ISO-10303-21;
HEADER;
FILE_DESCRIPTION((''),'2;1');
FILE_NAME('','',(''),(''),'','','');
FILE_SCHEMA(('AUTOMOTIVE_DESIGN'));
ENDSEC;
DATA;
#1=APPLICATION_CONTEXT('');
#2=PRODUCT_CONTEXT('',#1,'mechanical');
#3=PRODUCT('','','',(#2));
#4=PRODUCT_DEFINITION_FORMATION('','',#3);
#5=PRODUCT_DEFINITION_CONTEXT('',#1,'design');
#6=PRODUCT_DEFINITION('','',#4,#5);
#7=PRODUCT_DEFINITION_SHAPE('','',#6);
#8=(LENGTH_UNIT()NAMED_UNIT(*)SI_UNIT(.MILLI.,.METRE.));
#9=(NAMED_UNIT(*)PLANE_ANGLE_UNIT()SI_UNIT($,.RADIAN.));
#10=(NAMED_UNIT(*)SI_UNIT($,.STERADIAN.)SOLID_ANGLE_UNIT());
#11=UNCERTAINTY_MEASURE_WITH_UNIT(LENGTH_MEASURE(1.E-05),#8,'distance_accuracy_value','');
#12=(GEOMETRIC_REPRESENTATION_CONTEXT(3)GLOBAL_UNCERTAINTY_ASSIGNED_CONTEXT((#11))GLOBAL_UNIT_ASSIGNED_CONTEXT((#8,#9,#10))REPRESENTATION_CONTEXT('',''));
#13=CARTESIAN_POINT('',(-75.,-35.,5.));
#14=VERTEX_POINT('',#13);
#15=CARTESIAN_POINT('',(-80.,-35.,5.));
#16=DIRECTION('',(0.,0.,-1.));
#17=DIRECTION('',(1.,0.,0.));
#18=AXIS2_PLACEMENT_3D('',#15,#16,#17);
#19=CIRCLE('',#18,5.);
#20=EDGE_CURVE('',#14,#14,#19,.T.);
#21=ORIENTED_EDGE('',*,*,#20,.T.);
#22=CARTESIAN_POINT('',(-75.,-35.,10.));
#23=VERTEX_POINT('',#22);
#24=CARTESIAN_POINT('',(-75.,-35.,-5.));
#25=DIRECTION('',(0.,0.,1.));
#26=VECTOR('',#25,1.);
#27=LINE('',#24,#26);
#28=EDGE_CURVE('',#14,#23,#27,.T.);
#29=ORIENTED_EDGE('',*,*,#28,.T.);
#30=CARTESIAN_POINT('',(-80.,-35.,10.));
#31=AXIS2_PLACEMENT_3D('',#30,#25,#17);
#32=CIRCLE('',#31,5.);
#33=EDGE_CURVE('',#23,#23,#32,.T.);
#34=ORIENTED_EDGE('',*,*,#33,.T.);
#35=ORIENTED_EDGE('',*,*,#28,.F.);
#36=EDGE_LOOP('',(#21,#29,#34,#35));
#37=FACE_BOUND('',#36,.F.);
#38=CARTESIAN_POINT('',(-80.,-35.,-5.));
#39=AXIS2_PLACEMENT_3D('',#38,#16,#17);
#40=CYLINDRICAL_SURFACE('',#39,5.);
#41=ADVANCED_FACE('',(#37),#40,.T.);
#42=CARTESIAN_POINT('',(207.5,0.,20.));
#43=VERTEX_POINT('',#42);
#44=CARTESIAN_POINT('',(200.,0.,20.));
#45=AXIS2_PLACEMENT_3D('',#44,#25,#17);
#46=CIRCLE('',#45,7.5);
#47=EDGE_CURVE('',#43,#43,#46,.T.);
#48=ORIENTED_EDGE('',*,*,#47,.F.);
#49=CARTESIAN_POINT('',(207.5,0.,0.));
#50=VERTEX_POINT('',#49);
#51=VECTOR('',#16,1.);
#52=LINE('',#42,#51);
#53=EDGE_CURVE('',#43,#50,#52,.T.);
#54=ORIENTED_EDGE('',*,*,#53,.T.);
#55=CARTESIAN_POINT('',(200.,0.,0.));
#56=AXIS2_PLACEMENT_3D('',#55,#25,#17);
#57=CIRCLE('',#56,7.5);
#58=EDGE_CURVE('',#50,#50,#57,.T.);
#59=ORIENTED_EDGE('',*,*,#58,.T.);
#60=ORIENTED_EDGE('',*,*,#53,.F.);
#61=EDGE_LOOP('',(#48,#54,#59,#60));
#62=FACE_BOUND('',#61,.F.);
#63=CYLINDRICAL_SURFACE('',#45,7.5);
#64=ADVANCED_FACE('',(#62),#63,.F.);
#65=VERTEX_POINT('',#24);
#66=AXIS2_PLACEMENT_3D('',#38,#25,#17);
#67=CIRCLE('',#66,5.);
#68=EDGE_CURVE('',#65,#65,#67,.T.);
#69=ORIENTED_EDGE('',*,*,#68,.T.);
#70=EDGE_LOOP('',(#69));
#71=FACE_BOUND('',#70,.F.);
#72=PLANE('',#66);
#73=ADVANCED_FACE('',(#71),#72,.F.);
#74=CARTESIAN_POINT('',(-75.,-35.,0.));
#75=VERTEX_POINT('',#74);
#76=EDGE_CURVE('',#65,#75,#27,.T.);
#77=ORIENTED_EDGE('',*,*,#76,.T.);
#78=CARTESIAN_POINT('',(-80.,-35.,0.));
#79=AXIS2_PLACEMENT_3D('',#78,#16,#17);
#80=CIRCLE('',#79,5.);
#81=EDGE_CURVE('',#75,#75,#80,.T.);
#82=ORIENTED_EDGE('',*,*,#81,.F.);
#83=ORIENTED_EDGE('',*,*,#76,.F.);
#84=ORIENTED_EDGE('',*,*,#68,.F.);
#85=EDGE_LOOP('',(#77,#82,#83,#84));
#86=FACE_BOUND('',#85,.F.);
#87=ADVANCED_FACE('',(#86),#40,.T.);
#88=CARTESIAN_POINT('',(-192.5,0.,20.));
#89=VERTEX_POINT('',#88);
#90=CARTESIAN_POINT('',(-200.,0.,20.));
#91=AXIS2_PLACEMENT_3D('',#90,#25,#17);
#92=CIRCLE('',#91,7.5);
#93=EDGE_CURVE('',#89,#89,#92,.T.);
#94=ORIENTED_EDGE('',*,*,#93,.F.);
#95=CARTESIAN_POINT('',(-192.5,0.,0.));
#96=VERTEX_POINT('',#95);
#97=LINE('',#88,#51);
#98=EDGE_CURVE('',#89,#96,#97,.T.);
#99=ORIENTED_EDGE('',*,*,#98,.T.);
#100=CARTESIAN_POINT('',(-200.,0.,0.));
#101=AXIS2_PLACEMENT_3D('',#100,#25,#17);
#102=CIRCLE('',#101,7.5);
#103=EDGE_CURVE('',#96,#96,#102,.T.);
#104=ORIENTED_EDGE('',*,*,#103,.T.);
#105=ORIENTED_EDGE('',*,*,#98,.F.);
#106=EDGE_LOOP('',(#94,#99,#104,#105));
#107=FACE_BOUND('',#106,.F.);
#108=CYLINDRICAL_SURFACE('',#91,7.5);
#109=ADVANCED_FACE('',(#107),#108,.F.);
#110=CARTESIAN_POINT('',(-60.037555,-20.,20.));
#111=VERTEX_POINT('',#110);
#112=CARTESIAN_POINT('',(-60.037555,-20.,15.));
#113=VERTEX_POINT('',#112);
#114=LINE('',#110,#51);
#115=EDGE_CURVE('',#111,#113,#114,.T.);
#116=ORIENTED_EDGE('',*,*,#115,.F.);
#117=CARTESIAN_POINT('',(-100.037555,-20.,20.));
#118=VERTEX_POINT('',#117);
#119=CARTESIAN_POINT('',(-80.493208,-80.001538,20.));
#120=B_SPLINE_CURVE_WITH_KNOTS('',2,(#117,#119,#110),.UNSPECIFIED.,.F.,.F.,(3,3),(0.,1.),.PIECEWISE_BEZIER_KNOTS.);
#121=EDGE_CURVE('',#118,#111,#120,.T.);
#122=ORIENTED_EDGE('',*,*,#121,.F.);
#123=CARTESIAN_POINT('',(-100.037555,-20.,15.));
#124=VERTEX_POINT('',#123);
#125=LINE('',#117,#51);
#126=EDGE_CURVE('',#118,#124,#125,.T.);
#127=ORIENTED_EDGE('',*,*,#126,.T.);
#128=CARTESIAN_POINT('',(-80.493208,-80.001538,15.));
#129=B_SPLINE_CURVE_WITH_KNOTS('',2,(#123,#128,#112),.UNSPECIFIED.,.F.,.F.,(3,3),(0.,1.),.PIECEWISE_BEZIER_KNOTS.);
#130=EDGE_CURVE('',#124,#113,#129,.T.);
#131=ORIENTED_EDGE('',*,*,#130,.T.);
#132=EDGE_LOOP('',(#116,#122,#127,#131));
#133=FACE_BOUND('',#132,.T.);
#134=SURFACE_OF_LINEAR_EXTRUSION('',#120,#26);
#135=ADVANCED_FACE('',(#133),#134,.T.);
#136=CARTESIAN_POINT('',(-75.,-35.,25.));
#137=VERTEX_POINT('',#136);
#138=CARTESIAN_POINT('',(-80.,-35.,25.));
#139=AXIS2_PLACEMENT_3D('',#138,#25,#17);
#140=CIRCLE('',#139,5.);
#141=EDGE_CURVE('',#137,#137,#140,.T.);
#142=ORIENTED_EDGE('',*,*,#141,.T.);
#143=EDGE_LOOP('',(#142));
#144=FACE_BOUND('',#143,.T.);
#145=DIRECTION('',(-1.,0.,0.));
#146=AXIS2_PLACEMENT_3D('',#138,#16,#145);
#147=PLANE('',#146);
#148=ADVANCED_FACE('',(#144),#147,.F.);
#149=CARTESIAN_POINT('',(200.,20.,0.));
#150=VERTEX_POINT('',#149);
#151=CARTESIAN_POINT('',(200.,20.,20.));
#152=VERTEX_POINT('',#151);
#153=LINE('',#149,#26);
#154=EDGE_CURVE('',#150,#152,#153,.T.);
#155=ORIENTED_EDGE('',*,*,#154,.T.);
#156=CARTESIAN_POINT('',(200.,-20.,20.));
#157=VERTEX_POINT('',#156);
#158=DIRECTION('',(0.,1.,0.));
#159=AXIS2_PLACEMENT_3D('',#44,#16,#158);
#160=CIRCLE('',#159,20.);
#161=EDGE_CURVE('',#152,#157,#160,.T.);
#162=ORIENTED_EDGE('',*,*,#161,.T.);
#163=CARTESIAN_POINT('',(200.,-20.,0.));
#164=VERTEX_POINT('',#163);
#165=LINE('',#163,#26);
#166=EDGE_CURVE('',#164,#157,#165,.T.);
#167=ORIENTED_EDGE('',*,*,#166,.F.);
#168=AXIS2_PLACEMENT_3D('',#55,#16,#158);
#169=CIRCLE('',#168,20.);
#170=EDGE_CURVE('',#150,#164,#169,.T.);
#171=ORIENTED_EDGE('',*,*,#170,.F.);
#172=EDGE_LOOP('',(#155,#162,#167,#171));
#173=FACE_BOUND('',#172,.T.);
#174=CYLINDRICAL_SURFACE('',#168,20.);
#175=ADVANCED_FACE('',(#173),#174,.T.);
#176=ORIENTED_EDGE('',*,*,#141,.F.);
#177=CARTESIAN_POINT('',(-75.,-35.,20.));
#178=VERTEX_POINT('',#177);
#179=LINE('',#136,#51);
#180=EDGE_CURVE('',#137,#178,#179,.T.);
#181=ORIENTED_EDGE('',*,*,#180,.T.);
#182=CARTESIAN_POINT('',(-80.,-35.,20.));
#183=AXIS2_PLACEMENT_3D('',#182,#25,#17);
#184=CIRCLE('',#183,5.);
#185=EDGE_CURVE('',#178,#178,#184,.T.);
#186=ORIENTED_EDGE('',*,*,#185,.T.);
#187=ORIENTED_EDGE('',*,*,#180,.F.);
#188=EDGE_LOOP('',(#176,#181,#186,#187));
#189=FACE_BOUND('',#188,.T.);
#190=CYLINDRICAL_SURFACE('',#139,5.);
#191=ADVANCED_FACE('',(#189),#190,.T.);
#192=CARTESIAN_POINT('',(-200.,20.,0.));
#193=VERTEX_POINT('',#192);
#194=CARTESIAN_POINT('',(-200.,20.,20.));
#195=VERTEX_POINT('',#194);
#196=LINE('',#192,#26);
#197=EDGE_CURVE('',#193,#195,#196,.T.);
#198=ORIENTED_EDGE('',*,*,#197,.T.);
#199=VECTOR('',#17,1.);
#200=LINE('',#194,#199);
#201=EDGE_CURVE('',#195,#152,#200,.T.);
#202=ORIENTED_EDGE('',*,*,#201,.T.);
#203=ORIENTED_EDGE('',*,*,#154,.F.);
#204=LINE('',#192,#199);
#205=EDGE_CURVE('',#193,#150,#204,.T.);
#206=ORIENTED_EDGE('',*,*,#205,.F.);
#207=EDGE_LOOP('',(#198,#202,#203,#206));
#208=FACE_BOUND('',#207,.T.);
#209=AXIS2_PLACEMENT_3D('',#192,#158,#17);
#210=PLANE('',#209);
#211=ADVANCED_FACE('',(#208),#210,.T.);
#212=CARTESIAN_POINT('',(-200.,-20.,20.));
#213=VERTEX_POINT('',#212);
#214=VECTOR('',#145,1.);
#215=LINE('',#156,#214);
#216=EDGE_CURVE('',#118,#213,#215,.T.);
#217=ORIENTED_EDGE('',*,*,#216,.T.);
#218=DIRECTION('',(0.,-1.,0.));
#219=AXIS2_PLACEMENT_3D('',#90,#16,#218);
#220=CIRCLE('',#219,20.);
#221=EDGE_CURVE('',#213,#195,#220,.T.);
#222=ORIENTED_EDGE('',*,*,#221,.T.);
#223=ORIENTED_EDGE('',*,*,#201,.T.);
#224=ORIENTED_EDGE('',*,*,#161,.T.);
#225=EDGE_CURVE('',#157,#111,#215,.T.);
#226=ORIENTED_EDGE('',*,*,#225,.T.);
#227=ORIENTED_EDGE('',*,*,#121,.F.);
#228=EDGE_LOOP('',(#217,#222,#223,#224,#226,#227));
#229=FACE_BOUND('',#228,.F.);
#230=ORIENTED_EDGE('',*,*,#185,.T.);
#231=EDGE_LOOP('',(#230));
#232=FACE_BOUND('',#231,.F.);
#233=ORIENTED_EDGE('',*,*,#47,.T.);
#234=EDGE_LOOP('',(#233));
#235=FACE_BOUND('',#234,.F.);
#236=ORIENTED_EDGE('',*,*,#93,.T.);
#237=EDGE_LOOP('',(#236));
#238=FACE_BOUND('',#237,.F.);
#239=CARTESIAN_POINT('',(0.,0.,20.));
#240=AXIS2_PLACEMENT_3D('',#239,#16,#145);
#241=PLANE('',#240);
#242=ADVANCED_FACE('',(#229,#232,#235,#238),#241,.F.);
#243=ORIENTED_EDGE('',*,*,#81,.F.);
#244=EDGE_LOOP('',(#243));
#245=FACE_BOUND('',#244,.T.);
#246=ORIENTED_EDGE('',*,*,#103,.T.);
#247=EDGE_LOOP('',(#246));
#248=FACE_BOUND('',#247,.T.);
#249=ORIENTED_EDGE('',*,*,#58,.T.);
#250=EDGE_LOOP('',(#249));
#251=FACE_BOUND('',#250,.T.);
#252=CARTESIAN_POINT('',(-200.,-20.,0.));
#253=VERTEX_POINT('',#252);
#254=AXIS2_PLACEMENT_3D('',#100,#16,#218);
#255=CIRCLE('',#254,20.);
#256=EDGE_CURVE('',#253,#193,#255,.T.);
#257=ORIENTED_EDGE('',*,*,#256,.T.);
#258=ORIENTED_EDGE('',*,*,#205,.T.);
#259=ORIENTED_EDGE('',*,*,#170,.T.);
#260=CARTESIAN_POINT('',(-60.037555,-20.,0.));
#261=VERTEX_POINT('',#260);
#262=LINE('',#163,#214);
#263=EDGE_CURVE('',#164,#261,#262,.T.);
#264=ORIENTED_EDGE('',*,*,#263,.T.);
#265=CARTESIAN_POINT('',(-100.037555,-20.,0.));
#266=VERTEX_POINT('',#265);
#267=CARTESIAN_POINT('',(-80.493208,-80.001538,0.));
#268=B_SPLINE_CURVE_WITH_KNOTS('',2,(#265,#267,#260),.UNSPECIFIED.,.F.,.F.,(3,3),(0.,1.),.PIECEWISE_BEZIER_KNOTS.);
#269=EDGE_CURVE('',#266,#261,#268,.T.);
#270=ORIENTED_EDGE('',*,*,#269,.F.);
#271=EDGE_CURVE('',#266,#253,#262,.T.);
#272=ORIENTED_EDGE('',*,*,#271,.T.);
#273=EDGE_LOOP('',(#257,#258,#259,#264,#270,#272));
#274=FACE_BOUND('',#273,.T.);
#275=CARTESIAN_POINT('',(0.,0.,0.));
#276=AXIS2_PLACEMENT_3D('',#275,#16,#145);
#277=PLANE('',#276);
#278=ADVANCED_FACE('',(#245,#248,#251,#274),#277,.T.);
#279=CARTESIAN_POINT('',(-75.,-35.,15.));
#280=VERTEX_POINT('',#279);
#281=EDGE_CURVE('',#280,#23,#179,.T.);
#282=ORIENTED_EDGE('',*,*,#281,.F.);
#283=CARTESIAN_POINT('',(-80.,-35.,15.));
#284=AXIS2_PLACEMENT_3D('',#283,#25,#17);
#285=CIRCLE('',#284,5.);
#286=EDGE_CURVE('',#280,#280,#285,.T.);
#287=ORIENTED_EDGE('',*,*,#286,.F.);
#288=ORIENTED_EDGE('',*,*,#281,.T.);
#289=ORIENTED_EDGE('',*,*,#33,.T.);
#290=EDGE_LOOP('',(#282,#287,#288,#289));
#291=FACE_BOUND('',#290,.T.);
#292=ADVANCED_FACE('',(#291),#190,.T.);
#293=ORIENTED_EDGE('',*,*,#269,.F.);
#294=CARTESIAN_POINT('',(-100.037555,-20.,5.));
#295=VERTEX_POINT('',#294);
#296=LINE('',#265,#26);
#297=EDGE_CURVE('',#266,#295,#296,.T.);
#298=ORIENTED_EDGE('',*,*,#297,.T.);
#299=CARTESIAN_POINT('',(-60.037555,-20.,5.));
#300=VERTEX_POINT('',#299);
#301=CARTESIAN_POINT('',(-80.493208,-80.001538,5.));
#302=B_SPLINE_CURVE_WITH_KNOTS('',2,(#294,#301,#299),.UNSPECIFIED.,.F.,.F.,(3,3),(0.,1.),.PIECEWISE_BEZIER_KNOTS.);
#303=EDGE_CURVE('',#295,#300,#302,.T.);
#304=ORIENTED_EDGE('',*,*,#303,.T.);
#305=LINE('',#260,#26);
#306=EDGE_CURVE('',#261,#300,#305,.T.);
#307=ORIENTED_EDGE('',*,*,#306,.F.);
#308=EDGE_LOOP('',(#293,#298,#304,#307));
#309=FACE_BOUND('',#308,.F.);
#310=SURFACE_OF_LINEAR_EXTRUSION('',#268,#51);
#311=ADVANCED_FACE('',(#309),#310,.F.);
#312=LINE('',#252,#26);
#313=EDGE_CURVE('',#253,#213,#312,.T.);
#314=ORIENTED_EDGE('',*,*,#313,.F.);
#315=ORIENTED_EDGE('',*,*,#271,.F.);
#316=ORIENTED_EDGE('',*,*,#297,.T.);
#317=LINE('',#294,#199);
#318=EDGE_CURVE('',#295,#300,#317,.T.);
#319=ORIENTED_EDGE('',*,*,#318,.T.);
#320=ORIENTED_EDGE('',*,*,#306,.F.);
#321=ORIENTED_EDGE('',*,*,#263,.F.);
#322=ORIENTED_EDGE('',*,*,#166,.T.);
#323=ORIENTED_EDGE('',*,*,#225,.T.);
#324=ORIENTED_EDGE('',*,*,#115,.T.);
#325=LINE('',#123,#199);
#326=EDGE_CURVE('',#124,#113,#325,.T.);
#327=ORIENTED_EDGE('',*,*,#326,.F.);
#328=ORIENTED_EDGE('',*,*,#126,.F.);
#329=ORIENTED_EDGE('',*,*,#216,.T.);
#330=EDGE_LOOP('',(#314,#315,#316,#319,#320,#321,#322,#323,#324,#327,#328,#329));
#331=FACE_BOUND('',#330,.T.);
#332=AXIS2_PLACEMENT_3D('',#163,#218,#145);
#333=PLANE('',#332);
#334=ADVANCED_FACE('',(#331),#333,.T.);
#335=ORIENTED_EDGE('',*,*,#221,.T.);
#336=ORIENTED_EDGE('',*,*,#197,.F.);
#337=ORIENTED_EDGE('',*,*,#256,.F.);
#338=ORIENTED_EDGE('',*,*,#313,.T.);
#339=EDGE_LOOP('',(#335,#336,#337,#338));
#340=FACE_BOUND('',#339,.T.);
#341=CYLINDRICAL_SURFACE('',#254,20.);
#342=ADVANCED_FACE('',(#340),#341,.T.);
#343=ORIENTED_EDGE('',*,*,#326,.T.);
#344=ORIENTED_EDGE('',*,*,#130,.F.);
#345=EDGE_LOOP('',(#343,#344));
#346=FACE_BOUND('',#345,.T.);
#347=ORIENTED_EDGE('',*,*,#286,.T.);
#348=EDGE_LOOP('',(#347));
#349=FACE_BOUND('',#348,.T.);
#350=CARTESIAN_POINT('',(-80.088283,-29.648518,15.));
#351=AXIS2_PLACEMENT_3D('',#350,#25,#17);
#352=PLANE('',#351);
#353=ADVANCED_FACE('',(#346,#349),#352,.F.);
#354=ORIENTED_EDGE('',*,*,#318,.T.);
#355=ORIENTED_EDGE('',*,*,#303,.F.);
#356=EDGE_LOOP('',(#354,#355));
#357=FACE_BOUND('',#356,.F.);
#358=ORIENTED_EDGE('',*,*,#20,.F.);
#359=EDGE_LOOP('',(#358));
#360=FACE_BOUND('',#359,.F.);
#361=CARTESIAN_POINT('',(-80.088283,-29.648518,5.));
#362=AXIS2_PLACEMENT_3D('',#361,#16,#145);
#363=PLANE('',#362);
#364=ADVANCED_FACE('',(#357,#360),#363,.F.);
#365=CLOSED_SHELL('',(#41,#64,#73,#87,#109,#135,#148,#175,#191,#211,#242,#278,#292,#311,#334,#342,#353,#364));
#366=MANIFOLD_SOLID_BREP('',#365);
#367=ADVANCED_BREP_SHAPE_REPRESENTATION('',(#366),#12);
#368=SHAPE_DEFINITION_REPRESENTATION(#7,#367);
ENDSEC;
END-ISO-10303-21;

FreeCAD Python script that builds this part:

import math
import FreeCAD as App
import Part
import Sketcher
from FreeCAD import Vector
Q = App.Units.Quantity

doc = App.newDocument("Part")
body = doc.addObject("PartDesign::Body", "Body")

sketch1 = body.newObject("Sketcher::SketchObject", "Sketch")
sketch1.AttachmentSupport = (doc.getObject("XY_Plane"), [""])
sketch1.MapMode = "FlatFace"
sketch1.addGeometry([
    Part.LineSegment(Vector(200, 20, 0), Vector(-200, 20, 0)),
    Part.ArcOfCircle(Part.Circle(Vector(-200, 0, 0), Vector(0, 0, 1), 20), math.radians(90), math.radians(270)),
    Part.LineSegment(Vector(-200, -20, 0), Vector(200, -20, 0)),
    Part.ArcOfCircle(Part.Circle(Vector(200, 0, 0), Vector(0, 0, 1), 20), math.radians(-90), math.radians(90)),
], False)
sketch1.addConstraint([
    Sketcher.Constraint("Tangent", 0, 2, 1, 1),
    Sketcher.Constraint("Tangent", 1, 2, 2, 1),
    Sketcher.Constraint("Tangent", 2, 2, 3, 1),
    Sketcher.Constraint("Tangent", 3, 2, 0, 1),
    Sketcher.Constraint("Horizontal", 0),
    Sketcher.Constraint("Horizontal", 2),
    Sketcher.Constraint("Symmetric", 1, 3, 3, 3, -1, 1),
    Sketcher.Constraint("Radius", 1, Q("20 mm")),
    Sketcher.Constraint("DistanceX", 0, 2, 0, 1, Q("400 mm")),
])
pad1 = body.newObject("PartDesign::Pad", "Pad")
pad1.Profile = sketch1
pad1.Length = 20

sketch2 = body.newObject("Sketcher::SketchObject", "Sketch001")
sketch2.AttachmentSupport = (doc.getObject("XY_Plane"), [""])
sketch2.MapMode = "FlatFace"
sketch2.AttachmentOffset = App.Placement(Vector(0, 0, 20), App.Rotation())
sketch2.addGeometry([
    Part.Circle(Vector(-200, 0, 0), Vector(0, 0, 1), 7.5),
    Part.Circle(Vector(200, 0, 0), Vector(0, 0, 1), 7.5),
], False)
sketch2.addConstraint([
    Sketcher.Constraint("Equal", 0, 1),
    Sketcher.Constraint("Symmetric", 0, 3, 1, 3, -1, 1),
    Sketcher.Constraint("PointOnObject", 0, 3, -1),
    Sketcher.Constraint("Diameter", 0, Q("15 mm")),
    Sketcher.Constraint("DistanceX", 0, 3, -1, 1, Q("200 mm")),
])
pocket1 = body.newObject("PartDesign::Pocket", "Pocket")
pocket1.Profile = sketch2
pocket1.Length = 20

sketch3 = body.newObject("Sketcher::SketchObject", "Sketch002")
sketch3.AttachmentSupport = (doc.getObject("XY_Plane"), [""])
sketch3.MapMode = "FlatFace"
sketch3.addGeometry([
    Part.LineSegment(Vector(-60.037555, -20, 0), Vector(-100.037555, -20, 0)),
    Part.BSplineCurve([Vector(-100.037555, -20, 0), Vector(-80.493208, -80.001538, 0), Vector(-60.037555, -20, 0)], [3, 3], [0, 1], False, 2, [1, 1, 1], False),
], False)
sketch3.addConstraint([
    Sketcher.Constraint("Block", 1),
    Sketcher.Constraint("Coincident", 0, 1, 1, 2),
    Sketcher.Constraint("Coincident", 1, 1, 0, 2),
])
pad2 = body.newObject("PartDesign::Pad", "Pad001")
pad2.Profile = sketch3
pad2.Length = 5

sketch4 = body.newObject("Sketcher::SketchObject", "Sketch003")
sketch4.AttachmentSupport = (doc.getObject("XY_Plane"), [""])
sketch4.MapMode = "FlatFace"
sketch4.AttachmentOffset = App.Placement(Vector(0, 0, -5), App.Rotation())
sketch4.addGeometry(Part.Circle(Vector(-80, -35, 0), Vector(0, 0, 1), 5), False)
sketch4.addConstraint([
    Sketcher.Constraint("Diameter", 0, Q("10 mm")),
    Sketcher.Constraint("DistanceX", 0, 3, -1, 1, Q("80 mm")),
    Sketcher.Constraint("DistanceY", 0, 3, -1, 1, Q("35 mm")),
])
pad3 = body.newObject("PartDesign::Pad", "Pad002")
pad3.Profile = sketch4
pad3.Length = 15
doc.recompute()

datumplane = body.newObject("PartDesign::Plane", "DatumPlane")
datumplane.AttachmentSupport = (doc.getObject("XY_Plane"), [""])
datumplane.MapMode = "FlatFace"
datumplane.AttachmentOffset = App.Placement(Vector(0, 0, 10), App.Rotation())
mirrored = body.newObject("PartDesign::Mirrored", "Mirrored")
mirrored.Originals = [pad2, pad3]
mirrored.MirrorPlane = (datumplane, [""])
body.Tip = mirrored

doc.recompute()
